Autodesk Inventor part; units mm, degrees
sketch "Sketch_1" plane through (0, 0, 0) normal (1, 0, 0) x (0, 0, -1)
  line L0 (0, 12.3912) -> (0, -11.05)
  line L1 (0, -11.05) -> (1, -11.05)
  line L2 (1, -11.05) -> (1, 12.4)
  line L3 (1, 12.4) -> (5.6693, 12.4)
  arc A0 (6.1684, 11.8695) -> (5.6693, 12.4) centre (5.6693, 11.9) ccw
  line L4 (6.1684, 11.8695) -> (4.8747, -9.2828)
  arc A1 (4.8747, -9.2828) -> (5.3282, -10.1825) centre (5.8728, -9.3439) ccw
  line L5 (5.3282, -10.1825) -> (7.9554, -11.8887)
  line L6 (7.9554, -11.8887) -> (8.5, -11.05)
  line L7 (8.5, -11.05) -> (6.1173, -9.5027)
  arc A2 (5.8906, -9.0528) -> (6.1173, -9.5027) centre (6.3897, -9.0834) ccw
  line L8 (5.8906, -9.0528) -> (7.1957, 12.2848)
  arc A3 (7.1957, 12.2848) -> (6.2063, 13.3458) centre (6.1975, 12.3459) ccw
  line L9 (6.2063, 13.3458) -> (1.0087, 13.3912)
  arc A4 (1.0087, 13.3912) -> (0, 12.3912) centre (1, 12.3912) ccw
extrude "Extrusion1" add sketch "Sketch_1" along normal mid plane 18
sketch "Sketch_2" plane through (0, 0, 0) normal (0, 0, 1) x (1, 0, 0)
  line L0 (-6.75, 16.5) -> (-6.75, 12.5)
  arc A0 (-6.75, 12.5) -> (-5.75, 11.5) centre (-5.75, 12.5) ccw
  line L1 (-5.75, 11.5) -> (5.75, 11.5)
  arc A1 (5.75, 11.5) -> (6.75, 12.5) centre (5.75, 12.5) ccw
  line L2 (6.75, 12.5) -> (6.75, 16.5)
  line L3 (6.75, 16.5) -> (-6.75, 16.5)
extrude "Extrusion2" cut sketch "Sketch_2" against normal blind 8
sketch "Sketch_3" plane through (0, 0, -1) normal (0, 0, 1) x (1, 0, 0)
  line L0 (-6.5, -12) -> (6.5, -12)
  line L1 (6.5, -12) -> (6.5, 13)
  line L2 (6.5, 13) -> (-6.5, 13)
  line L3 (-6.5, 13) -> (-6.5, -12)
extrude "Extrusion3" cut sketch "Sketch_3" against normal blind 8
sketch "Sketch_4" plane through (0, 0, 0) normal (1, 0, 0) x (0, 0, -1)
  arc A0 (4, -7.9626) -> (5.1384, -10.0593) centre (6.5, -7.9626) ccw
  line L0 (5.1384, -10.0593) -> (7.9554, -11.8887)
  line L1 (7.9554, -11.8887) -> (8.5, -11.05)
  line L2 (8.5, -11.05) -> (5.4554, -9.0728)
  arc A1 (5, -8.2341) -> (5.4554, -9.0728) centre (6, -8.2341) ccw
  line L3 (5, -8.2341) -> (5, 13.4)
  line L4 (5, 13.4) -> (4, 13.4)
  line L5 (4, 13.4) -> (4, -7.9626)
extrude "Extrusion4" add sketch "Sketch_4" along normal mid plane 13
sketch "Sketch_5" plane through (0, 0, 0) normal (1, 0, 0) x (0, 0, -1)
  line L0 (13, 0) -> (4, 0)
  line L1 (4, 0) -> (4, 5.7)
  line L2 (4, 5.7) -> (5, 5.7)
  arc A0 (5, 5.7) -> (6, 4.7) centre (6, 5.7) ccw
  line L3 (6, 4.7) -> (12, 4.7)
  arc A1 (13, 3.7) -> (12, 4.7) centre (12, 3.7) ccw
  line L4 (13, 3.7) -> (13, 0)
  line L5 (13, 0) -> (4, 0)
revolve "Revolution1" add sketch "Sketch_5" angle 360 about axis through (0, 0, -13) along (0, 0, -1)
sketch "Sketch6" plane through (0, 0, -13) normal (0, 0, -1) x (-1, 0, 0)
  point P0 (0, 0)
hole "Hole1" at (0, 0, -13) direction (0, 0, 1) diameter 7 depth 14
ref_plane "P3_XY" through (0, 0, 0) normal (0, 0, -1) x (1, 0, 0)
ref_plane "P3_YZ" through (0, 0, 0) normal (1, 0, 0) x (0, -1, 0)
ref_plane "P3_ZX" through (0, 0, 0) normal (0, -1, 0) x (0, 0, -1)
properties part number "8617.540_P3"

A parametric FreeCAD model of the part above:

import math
import FreeCAD as App
import Part
import Sketcher
from FreeCAD import Vector
Q = App.Units.Quantity


def add_polygon(sketch, points):
    """Adds a closed chain of lines whose ends are joined by coincident constraints."""
    first, n = sketch.GeometryCount, len(points)
    for a, b in zip(points, points[1:] + points[:1]):
        sketch.addGeometry(Part.LineSegment(App.Vector(*a, 0), App.Vector(*b, 0)), False)
    for i in range(n):
        sketch.addConstraint(Sketcher.Constraint("Coincident", first + i, 2, first + (i + 1) % n, 1))

doc = App.newDocument("Part")
params = doc.addObject("Spreadsheet::Sheet", "Params")
for row, (alias, value) in enumerate([
    ("sketch1_radius", "1 mm"),
    ("sketch1_radius2", "0.5 mm"),
    ("sketch1_length", "1 mm"),
    ("sketch1_width", "23.45 mm"),
    ("pad1_length", "18 mm"),
    ("sketch2_radius", "1 mm"),
    ("sketch2_height", "4 mm"),
    ("sketch2_width", "13.5 mm"),
    ("pocket1_length", "8 mm"),
    ("sketch3_width", "13 mm"),
    ("sketch3_height", "25 mm"),
    ("pocket2_length", "8 mm"),
    ("sketch4_radius", "1 mm"),
    ("sketch4_radius2", "2.5 mm"),
    ("sketch4_height", "1 mm"),
    ("sketch4_length", "1 mm"),
    ("pad2_length", "13 mm"),
    ("sketch5_radius", "1 mm"),
    ("sketch5_height", "9 mm"),
    ("sketch5_height2", "6 mm"),
    ("sketch5_width", "3.7 mm"),
    ("sketch5_width2", "5.7 mm"),
    ("revolution_angle", "360 deg"),
    ("sketch6_diameter", "7 mm"),
    ("hole_diameter", "7 mm"),
    ("hole_depth", "14 mm"),
], start=1):
    params.set(f"A{row}", alias)
    params.set(f"B{row}", "=" + value)
    params.setAlias(f"B{row}", alias)

body = doc.addObject("PartDesign::Body", "Body")

sketch1 = body.newObject("Sketcher::SketchObject", "Sketch")
sketch1.AttachmentSupport = (doc.getObject("YZ_Plane"), [""])
sketch1.MapMode = "FlatFace"
sketch1.addGeometry([
    Part.ArcOfCircle(Part.Circle(Vector(12.4, -1, 0), Vector(0, 0, 1), 1), math.radians(0), math.radians(90)),
    Part.LineSegment(Vector(12.4, 0, 0), Vector(-11.1, 0, 0)),
    Part.LineSegment(Vector(-11.1, 0, 0), Vector(-11.1, -1, 0)),
    Part.LineSegment(Vector(-11.1, -1, 0), Vector(12.4, -1, 0)),
    Part.LineSegment(Vector(12.4, -1, 0), Vector(12.4, -5.7, 0)),
    Part.ArcOfCircle(Part.Circle(Vector(11.9, -5.7, 0), Vector(0, 0, 1), 0.5), math.radians(-93), math.radians(0)),
    Part.LineSegment(Vector(11.9, -6.2, 0), Vector(-9.3, -4.9, 0)),
    Part.ArcOfCircle(Part.Circle(Vector(-9.3, -5.9, 0), Vector(0, 0, 1), 1), math.radians(86), math.radians(147)),
    Part.LineSegment(Vector(-10.2, -5.3, 0), Vector(-11.9, -8, 0)),
    Part.LineSegment(Vector(-11.9, -8, 0), Vector(-11.1, -8.5, 0)),
    Part.LineSegment(Vector(-11.1, -8.5, 0), Vector(-9.5, -6.1, 0)),
    Part.ArcOfCircle(Part.Circle(Vector(-9.1, -6.4, 0), Vector(0, 0, 1), 0.5), math.radians(86), math.radians(147)),
    Part.LineSegment(Vector(-9.1, -5.9, 0), Vector(12.3, -7.2, 0)),
    Part.ArcOfCircle(Part.Circle(Vector(12.3, -6.2, 0), Vector(0, 0, 1), 1), math.radians(-94), math.radians(-1)),
    Part.LineSegment(Vector(13.3, -6.2, 0), Vector(13.4, -1, 0)),
], False)
sketch1.addConstraint([
    Sketcher.Constraint("Tangent", 0, 2, 1, 1),
    Sketcher.Constraint("Coincident", 1, 2, 2, 1),
    Sketcher.Constraint("Coincident", 2, 2, 3, 1),
    Sketcher.Constraint("Coincident", 3, 2, 4, 1),
    Sketcher.Constraint("Tangent", 4, 2, 5, 2),
    Sketcher.Constraint("Tangent", 5, 1, 6, 1),
    Sketcher.Constraint("Tangent", 6, 2, 7, 1),
    Sketcher.Constraint("Tangent", 7, 2, 8, 1),
    Sketcher.Constraint("Coincident", 8, 2, 9, 1),
    Sketcher.Constraint("Coincident", 9, 2, 10, 1),
    Sketcher.Constraint("Tangent", 10, 2, 11, 2),
    Sketcher.Constraint("Tangent", 11, 1, 12, 1),
    Sketcher.Constraint("Tangent", 12, 2, 13, 1),
    Sketcher.Constraint("Tangent", 13, 2, 14, 1),
    Sketcher.Constraint("Tangent", 14, 2, 0, 1),
    Sketcher.Constraint("Horizontal", 1),
    Sketcher.Constraint("Vertical", 2),
    Sketcher.Constraint("Horizontal", 3),
    Sketcher.Constraint("Vertical", 4),
    Sketcher.Constraint("Equal", 0, 7),
    Sketcher.Constraint("Equal", 5, 11),
    Sketcher.Constraint("Equal", 7, 13),
    Sketcher.Constraint("PointOnObject", 0, 2, -1),
    Sketcher.Constraint("Perpendicular", 8, 9),
    Sketcher.Constraint("Perpendicular", 9, 10),
    Sketcher.Constraint("Parallel", 6, 12),
    Sketcher.Constraint("Horizontal", 0, 3, 2, 2),
    Sketcher.Constraint("Vertical", 2, 2, 9, 2),
    Sketcher.Constraint("Radius", 0, Q("1 mm")),
    Sketcher.Constraint("Radius", 5, Q("0.5 mm")),
    Sketcher.Constraint("Angle", 8, Q("-123.0012 deg")),
    Sketcher.Constraint("Distance", 9, Q("1 mm")),
    Sketcher.Constraint("Angle", 6, Q("176.5 deg")),
    Sketcher.Constraint("Angle", 14, Q("89.4995 deg")),
    Sketcher.Constraint("DistanceX", 3, 1, 3, 2, Q("23.45 mm")),
    Sketcher.Constraint("DistanceX", -1, 1, 5, 3, Q("11.9 mm")),
    Sketcher.Constraint("DistanceY", 9, 2, -1, 1, Q("8.5 mm")),
    Sketcher.Constraint("DistanceX", 10, 2, 6, 2, Q("0.22 mm")),
    Sketcher.Constraint("Distance", 10, Q("2.841 mm")),
    Sketcher.Constraint("DistanceX", 1, 2, 1, 1, Q("23.4412 mm")),
])
sketch1.setExpression("Constraints[28]", "Params.sketch1_radius")
sketch1.setExpression("Constraints[29]", "Params.sketch1_radius2")
sketch1.setExpression("Constraints[31]", "Params.sketch1_length")
sketch1.setExpression("Constraints[34]", "Params.sketch1_width")
pad1 = body.newObject("PartDesign::Pad", "Pad")
pad1.Profile = sketch1
pad1.setExpression("Length", "Params.pad1_length")
pad1.Midplane = True

sketch2 = body.newObject("Sketcher::SketchObject", "Sketch001")
sketch2.AttachmentSupport = (doc.getObject("XY_Plane"), [""])
sketch2.MapMode = "FlatFace"
sketch2.addGeometry([
    Part.LineSegment(Vector(6.8, 16.5, 0), Vector(-6.8, 16.5, 0)),
    Part.LineSegment(Vector(-6.8, 16.5, 0), Vector(-6.8, 12.5, 0)),
    Part.ArcOfCircle(Part.Circle(Vector(-5.8, 12.5, 0), Vector(0, 0, 1), 1), math.radians(180), math.radians(270)),
    Part.LineSegment(Vector(-5.8, 11.5, 0), Vector(5.8, 11.5, 0)),
    Part.ArcOfCircle(Part.Circle(Vector(5.8, 12.5, 0), Vector(0, 0, 1), 1), math.radians(-90), math.radians(0)),
    Part.LineSegment(Vector(6.8, 12.5, 0), Vector(6.8, 16.5, 0)),
], False)
sketch2.addConstraint([
    Sketcher.Constraint("Coincident", 0, 2, 1, 1),
    Sketcher.Constraint("Tangent", 1, 2, 2, 1),
    Sketcher.Constraint("Tangent", 2, 2, 3, 1),
    Sketcher.Constraint("Tangent", 3, 2, 4, 1),
    Sketcher.Constraint("Tangent", 4, 2, 5, 1),
    Sketcher.Constraint("Coincident", 5, 2, 0, 1),
    Sketcher.Constraint("Horizontal", 0),
    Sketcher.Constraint("Vertical", 1),
    Sketcher.Constraint("Horizontal", 3),
    Sketcher.Constraint("Vertical", 5),
    Sketcher.Constraint("Equal", 2, 4),
    Sketcher.Constraint("Radius", 2, Q("1 mm")),
    Sketcher.Constraint("DistanceY", 1, 2, 1, 1, Q("4 mm")),
    Sketcher.Constraint("DistanceX", 0, 2, 0, 1, Q("13.5 mm")),
    Sketcher.Constraint("DistanceY", -1, 1, 2, 3, Q("12.5 mm")),
    Sketcher.Constraint("DistanceX", 2, 3, -1, 1, Q("5.75 mm")),
])
sketch2.setExpression("Constraints[11]", "Params.sketch2_radius")
sketch2.setExpression("Constraints[12]", "Params.sketch2_height")
sketch2.setExpression("Constraints[13]", "Params.sketch2_width")
pocket1 = body.newObject("PartDesign::Pocket", "Pocket")
pocket1.Profile = sketch2
pocket1.setExpression("Length", "Params.pocket1_length")

sketch3 = body.newObject("Sketcher::SketchObject", "Sketch002")
sketch3.AttachmentSupport = (doc.getObject("XY_Plane"), [""])
sketch3.MapMode = "FlatFace"
sketch3.AttachmentOffset = App.Placement(Vector(0, 0, -1), App.Rotation())
add_polygon(sketch3, [(-6, 13), (-6, -12), (6, -12), (6, 13)])
sketch3.addConstraint([
    Sketcher.Constraint("Vertical", 0),
    Sketcher.Constraint("Horizontal", 1),
    Sketcher.Constraint("Vertical", 2),
    Sketcher.Constraint("Horizontal", 3),
    Sketcher.Constraint("DistanceX", 1, 1, 1, 2, Q("13 mm")),
    Sketcher.Constraint("DistanceY", 0, 2, 0, 1, Q("25 mm")),
    Sketcher.Constraint("DistanceY", 0, 2, -1, 1, Q("12 mm")),
    Sketcher.Constraint("DistanceX", 0, 2, -1, 1, Q("6.5 mm")),
])
sketch3.setExpression("Constraints[8]", "Params.sketch3_width")
sketch3.setExpression("Constraints[9]", "Params.sketch3_height")
pocket2 = body.newObject("PartDesign::Pocket", "Pocket001")
pocket2.Profile = sketch3
pocket2.setExpression("Length", "Params.pocket2_length")

sketch4 = body.newObject("Sketcher::SketchObject", "Sketch003")
sketch4.AttachmentSupport = (doc.getObject("YZ_Plane"), [""])
sketch4.MapMode = "FlatFace"
sketch4.addGeometry([
    Part.LineSegment(Vector(13.4, -4, 0), Vector(-8, -4, 0)),
    Part.ArcOfCircle(Part.Circle(Vector(-8, -6.5, 0), Vector(0, 0, 1), 2.5), math.radians(90), math.radians(147)),
    Part.LineSegment(Vector(-10.1, -5.1, 0), Vector(-11.9, -8, 0)),
    Part.LineSegment(Vector(-11.9, -8, 0), Vector(-11.1, -8.5, 0)),
    Part.LineSegment(Vector(-11.1, -8.5, 0), Vector(-9.1, -5.5, 0)),
    Part.ArcOfCircle(Part.Circle(Vector(-8.2, -6, 0), Vector(0, 0, 1), 1), math.radians(90), math.radians(147)),
    Part.LineSegment(Vector(-8.2, -5, 0), Vector(13.4, -5, 0)),
    Part.LineSegment(Vector(13.4, -5, 0), Vector(13.4, -4, 0)),
], False)
sketch4.addConstraint([
    Sketcher.Constraint("Tangent", 0, 2, 1, 1),
    Sketcher.Constraint("Tangent", 1, 2, 2, 1),
    Sketcher.Constraint("Coincident", 2, 2, 3, 1),
    Sketcher.Constraint("Coincident", 3, 2, 4, 1),
    Sketcher.Constraint("Tangent", 4, 2, 5, 2),
    Sketcher.Constraint("Tangent", 5, 1, 6, 1),
    Sketcher.Constraint("Coincident", 6, 2, 7, 1),
    Sketcher.Constraint("Coincident", 7, 2, 0, 1),
    Sketcher.Constraint("Horizontal", 0),
    Sketcher.Constraint("Horizontal", 6),
    Sketcher.Constraint("Vertical", 7),
    Sketcher.Constraint("Perpendicular", 2, 3),
    Sketcher.Constraint("Perpendicular", 3, 4),
    Sketcher.Constraint("Radius", 5, Q("1 mm")),
    Sketcher.Constraint("Radius", 1, Q("2.5 mm")),
    Sketcher.Constraint("DistanceY", 7, 1, 7, 2, Q("1 mm")),
    Sketcher.Constraint("Angle", 2, Q("-123.0003 deg")),
    Sketcher.Constraint("Distance", 3, Q("1 mm")),
    Sketcher.Constraint("DistanceY", 5, 3, -1, 1, Q("6 mm")),
    Sketcher.Constraint("DistanceY", 3, 2, 1, 3, Q("2 mm")),
    Sketcher.Constraint("DistanceX", -1, 1, 6, 2, Q("13.4 mm")),
    Sketcher.Constraint("DistanceX", 6, 1, 6, 2, Q("21.634 mm")),
])
sketch4.setExpression("Constraints[13]", "Params.sketch4_radius")
sketch4.setExpression("Constraints[14]", "Params.sketch4_radius2")
sketch4.setExpression("Constraints[15]", "Params.sketch4_height")
sketch4.setExpression("Constraints[17]", "Params.sketch4_length")
pad2 = body.newObject("PartDesign::Pad", "Pad001")
pad2.Profile = sketch4
pad2.setExpression("Length", "Params.pad2_length")
pad2.Midplane = True

sketch5 = body.newObject("Sketcher::SketchObject", "Sketch004")
sketch5.AttachmentSupport = (doc.getObject("YZ_Plane"), [""])
sketch5.MapMode = "FlatFace"
sketch5.addGeometry([
    Part.LineSegment(Vector(0, -4, 0), Vector(0, -13, 0)),
    Part.LineSegment(Vector(0, -13, 0), Vector(3.7, -13, 0)),
    Part.ArcOfCircle(Part.Circle(Vector(3.7, -12, 0), Vector(0, 0, 1), 1), math.radians(-90), math.radians(0)),
    Part.LineSegment(Vector(4.7, -12, 0), Vector(4.7, -6, 0)),
    Part.ArcOfCircle(Part.Circle(Vector(5.7, -6, 0), Vector(0, 0, 1), 1), math.radians(90), math.radians(180)),
    Part.LineSegment(Vector(5.7, -5, 0), Vector(5.7, -4, 0)),
    Part.LineSegment(Vector(5.7, -4, 0), Vector(0, -4, 0)),
], False)
sketch5.addConstraint([
    Sketcher.Constraint("Coincident", 0, 2, 1, 1),
    Sketcher.Constraint("Tangent", 1, 2, 2, 1),
    Sketcher.Constraint("Tangent", 2, 2, 3, 1),
    Sketcher.Constraint("Tangent", 3, 2, 4, 2),
    Sketcher.Constraint("Coincident", 4, 1, 5, 1),
    Sketcher.Constraint("Coincident", 5, 2, 6, 1),
    Sketcher.Constraint("Coincident", 6, 2, 0, 1),
    Sketcher.Constraint("Vertical", 0),
    Sketcher.Constraint("Horizontal", 1),
    Sketcher.Constraint("Vertical", 3),
    Sketcher.Constraint("Vertical", 5),
    Sketcher.Constraint("Horizontal", 6),
    Sketcher.Constraint("Equal", 2, 4),
    Sketcher.Constraint("PointOnObject", 0, 2, -2),
    Sketcher.Constraint("Radius", 2, Q("1 mm")),
    Sketcher.Constraint("DistanceY", 0, 2, 0, 1, Q("9 mm")),
    Sketcher.Constraint("DistanceY", 3, 1, 3, 2, Q("6 mm")),
    Sketcher.Constraint("DistanceX", 1, 1, 1, 2, Q("3.7 mm")),
    Sketcher.Constraint("DistanceX", 6, 2, 6, 1, Q("5.7 mm")),
    Sketcher.Constraint("DistanceY", 2, 3, -1, 1, Q("12 mm")),
])
sketch5.setExpression("Constraints[14]", "Params.sketch5_radius")
sketch5.setExpression("Constraints[15]", "Params.sketch5_height")
sketch5.setExpression("Constraints[16]", "Params.sketch5_height2")
sketch5.setExpression("Constraints[17]", "Params.sketch5_width")
sketch5.setExpression("Constraints[18]", "Params.sketch5_width2")
revolution = body.newObject("PartDesign::Revolution", "Revolution")
revolution.Profile = sketch5
revolution.ReferenceAxis = (sketch5, ["V_Axis"])
revolution.setExpression("Angle", "Params.revolution_angle")

sketch6 = body.newObject("Sketcher::SketchObject", "Sketch005")
sketch6.AttachmentSupport = (doc.getObject("XY_Plane"), [""])
sketch6.MapMode = "FlatFace"
sketch6.AttachmentOffset = App.Placement(Vector(0, 0, -13), App.Rotation())
sketch6.addGeometry(Part.Circle(Vector(0, 0, 0), Vector(0, 0, 1), 3.5), False)
sketch6.addConstraint([
    Sketcher.Constraint("Coincident", 0, 3, -1, 1),
    Sketcher.Constraint("Diameter", 0, Q("7 mm")),
])
sketch6.setExpression("Constraints[1]", "Params.sketch6_diameter")
doc.recompute()
hole = body.newObject("PartDesign::Hole", "Hole")
hole.Profile = sketch6
hole.ThreadType = "None"
hole.setExpression("Diameter", "Params.hole_diameter")
hole.DepthType = "Dimension"
hole.setExpression("Depth", "Params.hole_depth")
hole.DrillPoint = "Flat"
hole.Reversed = True

doc.recompute()
